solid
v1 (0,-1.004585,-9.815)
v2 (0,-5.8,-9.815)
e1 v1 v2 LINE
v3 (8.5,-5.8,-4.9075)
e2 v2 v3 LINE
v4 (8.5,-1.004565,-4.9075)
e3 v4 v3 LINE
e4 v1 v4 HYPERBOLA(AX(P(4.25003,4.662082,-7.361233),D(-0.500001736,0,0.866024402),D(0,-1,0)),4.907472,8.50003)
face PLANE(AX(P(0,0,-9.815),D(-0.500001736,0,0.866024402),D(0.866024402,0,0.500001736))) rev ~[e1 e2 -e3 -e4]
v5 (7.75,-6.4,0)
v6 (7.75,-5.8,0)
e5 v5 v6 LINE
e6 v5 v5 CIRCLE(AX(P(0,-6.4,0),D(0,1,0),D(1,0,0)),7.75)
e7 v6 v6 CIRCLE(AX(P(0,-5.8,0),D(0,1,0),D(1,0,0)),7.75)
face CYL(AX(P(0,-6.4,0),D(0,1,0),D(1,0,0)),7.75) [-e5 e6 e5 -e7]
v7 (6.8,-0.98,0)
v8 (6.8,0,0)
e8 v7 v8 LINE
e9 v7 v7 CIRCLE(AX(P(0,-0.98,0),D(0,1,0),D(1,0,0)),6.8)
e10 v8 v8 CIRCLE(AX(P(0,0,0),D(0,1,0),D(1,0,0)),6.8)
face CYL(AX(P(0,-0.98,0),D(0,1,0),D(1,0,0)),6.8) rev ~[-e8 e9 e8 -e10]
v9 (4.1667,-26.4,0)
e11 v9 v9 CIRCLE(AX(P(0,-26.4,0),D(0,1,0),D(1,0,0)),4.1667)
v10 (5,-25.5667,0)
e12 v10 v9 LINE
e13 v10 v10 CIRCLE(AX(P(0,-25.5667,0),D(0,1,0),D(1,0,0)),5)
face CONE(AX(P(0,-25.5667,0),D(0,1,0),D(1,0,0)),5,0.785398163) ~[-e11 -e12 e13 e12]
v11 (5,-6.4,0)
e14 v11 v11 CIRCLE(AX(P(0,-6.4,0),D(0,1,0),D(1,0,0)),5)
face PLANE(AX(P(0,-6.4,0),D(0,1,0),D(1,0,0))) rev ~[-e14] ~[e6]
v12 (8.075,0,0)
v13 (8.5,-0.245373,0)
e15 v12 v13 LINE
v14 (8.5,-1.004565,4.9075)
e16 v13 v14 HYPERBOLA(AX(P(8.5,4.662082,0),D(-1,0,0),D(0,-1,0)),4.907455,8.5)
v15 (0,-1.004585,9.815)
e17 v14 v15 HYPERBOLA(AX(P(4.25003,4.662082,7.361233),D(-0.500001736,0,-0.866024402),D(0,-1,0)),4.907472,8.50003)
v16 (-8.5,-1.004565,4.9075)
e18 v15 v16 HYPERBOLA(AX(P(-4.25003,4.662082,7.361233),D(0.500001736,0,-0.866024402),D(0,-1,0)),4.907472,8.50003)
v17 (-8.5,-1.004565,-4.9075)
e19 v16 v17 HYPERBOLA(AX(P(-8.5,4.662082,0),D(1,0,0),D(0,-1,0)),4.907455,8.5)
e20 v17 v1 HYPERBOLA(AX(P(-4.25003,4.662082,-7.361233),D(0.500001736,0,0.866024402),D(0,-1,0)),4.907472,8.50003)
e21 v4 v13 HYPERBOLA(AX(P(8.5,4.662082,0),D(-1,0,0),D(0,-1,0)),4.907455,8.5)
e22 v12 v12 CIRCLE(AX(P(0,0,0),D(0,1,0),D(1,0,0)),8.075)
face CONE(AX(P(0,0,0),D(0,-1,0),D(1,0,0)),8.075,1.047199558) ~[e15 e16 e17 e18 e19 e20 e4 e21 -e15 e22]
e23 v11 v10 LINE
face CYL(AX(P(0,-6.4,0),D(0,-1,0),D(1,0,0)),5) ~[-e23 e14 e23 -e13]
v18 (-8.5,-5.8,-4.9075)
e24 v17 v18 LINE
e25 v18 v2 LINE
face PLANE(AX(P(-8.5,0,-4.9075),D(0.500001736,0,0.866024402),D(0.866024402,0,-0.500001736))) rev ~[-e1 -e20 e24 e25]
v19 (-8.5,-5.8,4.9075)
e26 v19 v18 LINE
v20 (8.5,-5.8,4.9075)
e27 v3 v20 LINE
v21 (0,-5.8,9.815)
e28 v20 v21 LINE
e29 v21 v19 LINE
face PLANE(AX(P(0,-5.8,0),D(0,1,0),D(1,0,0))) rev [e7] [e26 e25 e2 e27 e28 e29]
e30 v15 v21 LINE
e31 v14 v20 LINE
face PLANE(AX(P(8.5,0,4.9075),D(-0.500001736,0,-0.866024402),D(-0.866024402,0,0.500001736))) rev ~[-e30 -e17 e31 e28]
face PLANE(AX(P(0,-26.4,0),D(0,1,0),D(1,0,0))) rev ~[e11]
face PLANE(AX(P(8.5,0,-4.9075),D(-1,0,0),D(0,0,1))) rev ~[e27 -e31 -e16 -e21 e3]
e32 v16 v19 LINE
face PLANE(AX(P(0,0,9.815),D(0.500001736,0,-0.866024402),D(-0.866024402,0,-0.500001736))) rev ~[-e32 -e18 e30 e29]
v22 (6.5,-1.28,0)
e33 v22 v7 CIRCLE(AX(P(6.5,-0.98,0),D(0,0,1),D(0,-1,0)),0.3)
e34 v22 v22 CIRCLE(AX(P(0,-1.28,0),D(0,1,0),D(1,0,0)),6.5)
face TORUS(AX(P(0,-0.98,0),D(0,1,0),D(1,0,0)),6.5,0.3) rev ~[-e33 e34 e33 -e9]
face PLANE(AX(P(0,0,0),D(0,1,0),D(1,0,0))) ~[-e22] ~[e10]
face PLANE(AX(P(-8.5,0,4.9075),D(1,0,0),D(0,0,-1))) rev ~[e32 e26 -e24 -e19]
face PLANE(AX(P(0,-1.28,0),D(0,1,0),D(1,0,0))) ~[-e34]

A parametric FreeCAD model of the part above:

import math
import FreeCAD as App
import Part
import Sketcher
Q = App.Units.Quantity


def edges_at(feature, points):
    """Names of the edges that pass closest to the given points."""
    edges = feature.Shape.Edges
    near = lambda p: min(range(len(edges)), key=lambda i: edges[i].distToShape(Part.Vertex(*p))[0])
    return sorted({f"Edge{near(p) + 1}" for p in points})

doc = App.newDocument("Part")
body = doc.addObject("PartDesign::Body", "Body")

sketch1 = doc.addObject("Sketcher::SketchObject", "Sketch")
body.addObject(sketch1)
sketch1.AttachmentSupport = (doc.XY_Plane, [""])
sketch1.MapMode = "FlatFace"
sketch1.addGeometry([
    Part.LineSegment(App.Vector(8.075, 0, 0), App.Vector(6.8, 0, 0)),
    Part.LineSegment(App.Vector(6.8, 0, 0), App.Vector(6.8, -0.98, 0)),
    Part.ArcOfCircle(Part.Circle(App.Vector(6.5, -0.98, 0), App.Vector(0, 0, 1), 0.3), math.radians(-90), math.radians(0)),
    Part.LineSegment(App.Vector(6.5, -1.28, 0), App.Vector(0, -1.28, 0)),
    Part.LineSegment(App.Vector(0, -1.28, 0), App.Vector(0, -26.4, 0)),
    Part.LineSegment(App.Vector(0, -26.4, 0), App.Vector(5, -26.4, 0)),
    Part.LineSegment(App.Vector(5, -26.4, 0), App.Vector(5, -6.4, 0)),
    Part.LineSegment(App.Vector(5, -6.4, 0), App.Vector(7.75, -6.4, 0)),
    Part.LineSegment(App.Vector(7.75, -6.4, 0), App.Vector(7.75, -5.8, 0)),
    Part.LineSegment(App.Vector(7.75, -5.8, 0), App.Vector(12.75, -5.8, 0)),
    Part.LineSegment(App.Vector(12.75, -5.8, 0), App.Vector(12.75, -2.6991, 0)),
    Part.LineSegment(App.Vector(12.75, -2.6991, 0), App.Vector(8.075, 0, 0)),
], False)
sketch1.addConstraint([
    Sketcher.Constraint("Coincident", 0, 2, 1, 1),
    Sketcher.Constraint("Tangent", 1, 2, 2, 2),
    Sketcher.Constraint("Tangent", 2, 1, 3, 1),
    Sketcher.Constraint("Coincident", 3, 2, 4, 1),
    Sketcher.Constraint("Coincident", 4, 2, 5, 1),
    Sketcher.Constraint("Coincident", 5, 2, 6, 1),
    Sketcher.Constraint("Coincident", 6, 2, 7, 1),
    Sketcher.Constraint("Coincident", 7, 2, 8, 1),
    Sketcher.Constraint("Coincident", 8, 2, 9, 1),
    Sketcher.Constraint("Coincident", 9, 2, 10, 1),
    Sketcher.Constraint("Coincident", 10, 2, 11, 1),
    Sketcher.Constraint("Coincident", 11, 2, 0, 1),
    Sketcher.Constraint("Horizontal", 0),
    Sketcher.Constraint("Vertical", 1),
    Sketcher.Constraint("Horizontal", 3),
    Sketcher.Constraint("Vertical", 4),
    Sketcher.Constraint("Horizontal", 5),
    Sketcher.Constraint("Vertical", 6),
    Sketcher.Constraint("Horizontal", 7),
    Sketcher.Constraint("Vertical", 8),
    Sketcher.Constraint("Horizontal", 9),
    Sketcher.Constraint("Vertical", 10),
    Sketcher.Constraint("PointOnObject", 0, 2, -1),
    Sketcher.Constraint("PointOnObject", 3, 2, -2),
    Sketcher.Constraint("Equal", 5, 9),
    Sketcher.Constraint("Radius", 2, 0.3),
    Sketcher.Constraint("DistanceY", 6, 1, 6, 2, 20.0),
    Sketcher.Constraint("DistanceY", 8, 1, 8, 2, 0.6),
    Sketcher.Constraint("DistanceY", 6, 2, -1, 1, 6.4),
    Sketcher.Constraint("DistanceX", 5, 1, 5, 2, 5.0),
    Sketcher.Constraint("DistanceY", 2, 1, -1, 1, 1.28),
    Sketcher.Constraint("Angle", 11, Q("150 deg")),
    Sketcher.Constraint("DistanceX", 3, 2, 3, 1, 6.5),
    Sketcher.Constraint("DistanceX", 7, 1, 7, 2, 2.75),
    Sketcher.Constraint("DistanceX", 0, 2, 0, 1, 1.275),
])
revolution = doc.addObject("PartDesign::Revolution", "Revolution")
body.addObject(revolution)
revolution.Profile = sketch1
revolution.ReferenceAxis = (sketch1, ["V_Axis"])
revolution.Angle = 360

sketch2 = doc.addObject("Sketcher::SketchObject", "Sketch001")
body.addObject(sketch2)
sketch2.AttachmentSupport = (doc.XZ_Plane, [""])
sketch2.MapMode = "FlatFace"
sketch2.addGeometry([
    Part.Circle(App.Vector(0, 0, 0), App.Vector(0, 0, 1), 12.75),
    Part.LineSegment(App.Vector(8.5, 4.9075, 0), App.Vector(0, 9.815, 0)),
    Part.LineSegment(App.Vector(0, 9.815, 0), App.Vector(-8.5, 4.9075, 0)),
    Part.LineSegment(App.Vector(-8.5, 4.9075, 0), App.Vector(-8.5, -4.9075, 0)),
    Part.LineSegment(App.Vector(-8.5, -4.9075, 0), App.Vector(0, -9.815, 0)),
    Part.LineSegment(App.Vector(0, -9.815, 0), App.Vector(8.5, -4.9075, 0)),
    Part.LineSegment(App.Vector(8.5, -4.9075, 0), App.Vector(8.5, 4.9075, 0)),
], False)
sketch2.addConstraint([
    Sketcher.Constraint("Coincident", 1, 2, 2, 1),
    Sketcher.Constraint("Coincident", 2, 2, 3, 1),
    Sketcher.Constraint("Coincident", 3, 2, 4, 1),
    Sketcher.Constraint("Coincident", 4, 2, 5, 1),
    Sketcher.Constraint("Coincident", 5, 2, 6, 1),
    Sketcher.Constraint("Coincident", 6, 2, 1, 1),
    Sketcher.Constraint("Vertical", 3),
    Sketcher.Constraint("Vertical", 6),
    Sketcher.Constraint("Coincident", 0, 3, -1, 1),
    Sketcher.Constraint("Symmetric", 1, 2, 4, 2, -1, 1),
    Sketcher.Constraint("Symmetric", 2, 2, 5, 2, -1, 1),
    Sketcher.Constraint("PointOnObject", 1, 2, -2),
    Sketcher.Constraint("Parallel", 1, 4),
    Sketcher.Constraint("Horizontal", 3, 2, 5, 2),
    Sketcher.Constraint("DistanceX", 3, 2, 5, 2, 17.0),
    Sketcher.Constraint("Diameter", 0, 25.5),
    Sketcher.Constraint("Angle", 1, Q("150 deg")),
    Sketcher.Constraint("DistanceY", 3, 2, 3, 1, 9.815),
])
pocket1 = doc.addObject("PartDesign::Pocket", "Pocket")
body.addObject(pocket1)
pocket1.Profile = sketch2
pocket1.Length = 5.8
pocket1.Reversed = True
doc.recompute()

chamfer = doc.addObject("PartDesign::Chamfer", "Chamfer")
body.addObject(chamfer)
chamfer.Base = (pocket1, edges_at(pocket1, [(-5, -26.4, 0)]))
chamfer.Size = 0.8333

doc.recompute()
